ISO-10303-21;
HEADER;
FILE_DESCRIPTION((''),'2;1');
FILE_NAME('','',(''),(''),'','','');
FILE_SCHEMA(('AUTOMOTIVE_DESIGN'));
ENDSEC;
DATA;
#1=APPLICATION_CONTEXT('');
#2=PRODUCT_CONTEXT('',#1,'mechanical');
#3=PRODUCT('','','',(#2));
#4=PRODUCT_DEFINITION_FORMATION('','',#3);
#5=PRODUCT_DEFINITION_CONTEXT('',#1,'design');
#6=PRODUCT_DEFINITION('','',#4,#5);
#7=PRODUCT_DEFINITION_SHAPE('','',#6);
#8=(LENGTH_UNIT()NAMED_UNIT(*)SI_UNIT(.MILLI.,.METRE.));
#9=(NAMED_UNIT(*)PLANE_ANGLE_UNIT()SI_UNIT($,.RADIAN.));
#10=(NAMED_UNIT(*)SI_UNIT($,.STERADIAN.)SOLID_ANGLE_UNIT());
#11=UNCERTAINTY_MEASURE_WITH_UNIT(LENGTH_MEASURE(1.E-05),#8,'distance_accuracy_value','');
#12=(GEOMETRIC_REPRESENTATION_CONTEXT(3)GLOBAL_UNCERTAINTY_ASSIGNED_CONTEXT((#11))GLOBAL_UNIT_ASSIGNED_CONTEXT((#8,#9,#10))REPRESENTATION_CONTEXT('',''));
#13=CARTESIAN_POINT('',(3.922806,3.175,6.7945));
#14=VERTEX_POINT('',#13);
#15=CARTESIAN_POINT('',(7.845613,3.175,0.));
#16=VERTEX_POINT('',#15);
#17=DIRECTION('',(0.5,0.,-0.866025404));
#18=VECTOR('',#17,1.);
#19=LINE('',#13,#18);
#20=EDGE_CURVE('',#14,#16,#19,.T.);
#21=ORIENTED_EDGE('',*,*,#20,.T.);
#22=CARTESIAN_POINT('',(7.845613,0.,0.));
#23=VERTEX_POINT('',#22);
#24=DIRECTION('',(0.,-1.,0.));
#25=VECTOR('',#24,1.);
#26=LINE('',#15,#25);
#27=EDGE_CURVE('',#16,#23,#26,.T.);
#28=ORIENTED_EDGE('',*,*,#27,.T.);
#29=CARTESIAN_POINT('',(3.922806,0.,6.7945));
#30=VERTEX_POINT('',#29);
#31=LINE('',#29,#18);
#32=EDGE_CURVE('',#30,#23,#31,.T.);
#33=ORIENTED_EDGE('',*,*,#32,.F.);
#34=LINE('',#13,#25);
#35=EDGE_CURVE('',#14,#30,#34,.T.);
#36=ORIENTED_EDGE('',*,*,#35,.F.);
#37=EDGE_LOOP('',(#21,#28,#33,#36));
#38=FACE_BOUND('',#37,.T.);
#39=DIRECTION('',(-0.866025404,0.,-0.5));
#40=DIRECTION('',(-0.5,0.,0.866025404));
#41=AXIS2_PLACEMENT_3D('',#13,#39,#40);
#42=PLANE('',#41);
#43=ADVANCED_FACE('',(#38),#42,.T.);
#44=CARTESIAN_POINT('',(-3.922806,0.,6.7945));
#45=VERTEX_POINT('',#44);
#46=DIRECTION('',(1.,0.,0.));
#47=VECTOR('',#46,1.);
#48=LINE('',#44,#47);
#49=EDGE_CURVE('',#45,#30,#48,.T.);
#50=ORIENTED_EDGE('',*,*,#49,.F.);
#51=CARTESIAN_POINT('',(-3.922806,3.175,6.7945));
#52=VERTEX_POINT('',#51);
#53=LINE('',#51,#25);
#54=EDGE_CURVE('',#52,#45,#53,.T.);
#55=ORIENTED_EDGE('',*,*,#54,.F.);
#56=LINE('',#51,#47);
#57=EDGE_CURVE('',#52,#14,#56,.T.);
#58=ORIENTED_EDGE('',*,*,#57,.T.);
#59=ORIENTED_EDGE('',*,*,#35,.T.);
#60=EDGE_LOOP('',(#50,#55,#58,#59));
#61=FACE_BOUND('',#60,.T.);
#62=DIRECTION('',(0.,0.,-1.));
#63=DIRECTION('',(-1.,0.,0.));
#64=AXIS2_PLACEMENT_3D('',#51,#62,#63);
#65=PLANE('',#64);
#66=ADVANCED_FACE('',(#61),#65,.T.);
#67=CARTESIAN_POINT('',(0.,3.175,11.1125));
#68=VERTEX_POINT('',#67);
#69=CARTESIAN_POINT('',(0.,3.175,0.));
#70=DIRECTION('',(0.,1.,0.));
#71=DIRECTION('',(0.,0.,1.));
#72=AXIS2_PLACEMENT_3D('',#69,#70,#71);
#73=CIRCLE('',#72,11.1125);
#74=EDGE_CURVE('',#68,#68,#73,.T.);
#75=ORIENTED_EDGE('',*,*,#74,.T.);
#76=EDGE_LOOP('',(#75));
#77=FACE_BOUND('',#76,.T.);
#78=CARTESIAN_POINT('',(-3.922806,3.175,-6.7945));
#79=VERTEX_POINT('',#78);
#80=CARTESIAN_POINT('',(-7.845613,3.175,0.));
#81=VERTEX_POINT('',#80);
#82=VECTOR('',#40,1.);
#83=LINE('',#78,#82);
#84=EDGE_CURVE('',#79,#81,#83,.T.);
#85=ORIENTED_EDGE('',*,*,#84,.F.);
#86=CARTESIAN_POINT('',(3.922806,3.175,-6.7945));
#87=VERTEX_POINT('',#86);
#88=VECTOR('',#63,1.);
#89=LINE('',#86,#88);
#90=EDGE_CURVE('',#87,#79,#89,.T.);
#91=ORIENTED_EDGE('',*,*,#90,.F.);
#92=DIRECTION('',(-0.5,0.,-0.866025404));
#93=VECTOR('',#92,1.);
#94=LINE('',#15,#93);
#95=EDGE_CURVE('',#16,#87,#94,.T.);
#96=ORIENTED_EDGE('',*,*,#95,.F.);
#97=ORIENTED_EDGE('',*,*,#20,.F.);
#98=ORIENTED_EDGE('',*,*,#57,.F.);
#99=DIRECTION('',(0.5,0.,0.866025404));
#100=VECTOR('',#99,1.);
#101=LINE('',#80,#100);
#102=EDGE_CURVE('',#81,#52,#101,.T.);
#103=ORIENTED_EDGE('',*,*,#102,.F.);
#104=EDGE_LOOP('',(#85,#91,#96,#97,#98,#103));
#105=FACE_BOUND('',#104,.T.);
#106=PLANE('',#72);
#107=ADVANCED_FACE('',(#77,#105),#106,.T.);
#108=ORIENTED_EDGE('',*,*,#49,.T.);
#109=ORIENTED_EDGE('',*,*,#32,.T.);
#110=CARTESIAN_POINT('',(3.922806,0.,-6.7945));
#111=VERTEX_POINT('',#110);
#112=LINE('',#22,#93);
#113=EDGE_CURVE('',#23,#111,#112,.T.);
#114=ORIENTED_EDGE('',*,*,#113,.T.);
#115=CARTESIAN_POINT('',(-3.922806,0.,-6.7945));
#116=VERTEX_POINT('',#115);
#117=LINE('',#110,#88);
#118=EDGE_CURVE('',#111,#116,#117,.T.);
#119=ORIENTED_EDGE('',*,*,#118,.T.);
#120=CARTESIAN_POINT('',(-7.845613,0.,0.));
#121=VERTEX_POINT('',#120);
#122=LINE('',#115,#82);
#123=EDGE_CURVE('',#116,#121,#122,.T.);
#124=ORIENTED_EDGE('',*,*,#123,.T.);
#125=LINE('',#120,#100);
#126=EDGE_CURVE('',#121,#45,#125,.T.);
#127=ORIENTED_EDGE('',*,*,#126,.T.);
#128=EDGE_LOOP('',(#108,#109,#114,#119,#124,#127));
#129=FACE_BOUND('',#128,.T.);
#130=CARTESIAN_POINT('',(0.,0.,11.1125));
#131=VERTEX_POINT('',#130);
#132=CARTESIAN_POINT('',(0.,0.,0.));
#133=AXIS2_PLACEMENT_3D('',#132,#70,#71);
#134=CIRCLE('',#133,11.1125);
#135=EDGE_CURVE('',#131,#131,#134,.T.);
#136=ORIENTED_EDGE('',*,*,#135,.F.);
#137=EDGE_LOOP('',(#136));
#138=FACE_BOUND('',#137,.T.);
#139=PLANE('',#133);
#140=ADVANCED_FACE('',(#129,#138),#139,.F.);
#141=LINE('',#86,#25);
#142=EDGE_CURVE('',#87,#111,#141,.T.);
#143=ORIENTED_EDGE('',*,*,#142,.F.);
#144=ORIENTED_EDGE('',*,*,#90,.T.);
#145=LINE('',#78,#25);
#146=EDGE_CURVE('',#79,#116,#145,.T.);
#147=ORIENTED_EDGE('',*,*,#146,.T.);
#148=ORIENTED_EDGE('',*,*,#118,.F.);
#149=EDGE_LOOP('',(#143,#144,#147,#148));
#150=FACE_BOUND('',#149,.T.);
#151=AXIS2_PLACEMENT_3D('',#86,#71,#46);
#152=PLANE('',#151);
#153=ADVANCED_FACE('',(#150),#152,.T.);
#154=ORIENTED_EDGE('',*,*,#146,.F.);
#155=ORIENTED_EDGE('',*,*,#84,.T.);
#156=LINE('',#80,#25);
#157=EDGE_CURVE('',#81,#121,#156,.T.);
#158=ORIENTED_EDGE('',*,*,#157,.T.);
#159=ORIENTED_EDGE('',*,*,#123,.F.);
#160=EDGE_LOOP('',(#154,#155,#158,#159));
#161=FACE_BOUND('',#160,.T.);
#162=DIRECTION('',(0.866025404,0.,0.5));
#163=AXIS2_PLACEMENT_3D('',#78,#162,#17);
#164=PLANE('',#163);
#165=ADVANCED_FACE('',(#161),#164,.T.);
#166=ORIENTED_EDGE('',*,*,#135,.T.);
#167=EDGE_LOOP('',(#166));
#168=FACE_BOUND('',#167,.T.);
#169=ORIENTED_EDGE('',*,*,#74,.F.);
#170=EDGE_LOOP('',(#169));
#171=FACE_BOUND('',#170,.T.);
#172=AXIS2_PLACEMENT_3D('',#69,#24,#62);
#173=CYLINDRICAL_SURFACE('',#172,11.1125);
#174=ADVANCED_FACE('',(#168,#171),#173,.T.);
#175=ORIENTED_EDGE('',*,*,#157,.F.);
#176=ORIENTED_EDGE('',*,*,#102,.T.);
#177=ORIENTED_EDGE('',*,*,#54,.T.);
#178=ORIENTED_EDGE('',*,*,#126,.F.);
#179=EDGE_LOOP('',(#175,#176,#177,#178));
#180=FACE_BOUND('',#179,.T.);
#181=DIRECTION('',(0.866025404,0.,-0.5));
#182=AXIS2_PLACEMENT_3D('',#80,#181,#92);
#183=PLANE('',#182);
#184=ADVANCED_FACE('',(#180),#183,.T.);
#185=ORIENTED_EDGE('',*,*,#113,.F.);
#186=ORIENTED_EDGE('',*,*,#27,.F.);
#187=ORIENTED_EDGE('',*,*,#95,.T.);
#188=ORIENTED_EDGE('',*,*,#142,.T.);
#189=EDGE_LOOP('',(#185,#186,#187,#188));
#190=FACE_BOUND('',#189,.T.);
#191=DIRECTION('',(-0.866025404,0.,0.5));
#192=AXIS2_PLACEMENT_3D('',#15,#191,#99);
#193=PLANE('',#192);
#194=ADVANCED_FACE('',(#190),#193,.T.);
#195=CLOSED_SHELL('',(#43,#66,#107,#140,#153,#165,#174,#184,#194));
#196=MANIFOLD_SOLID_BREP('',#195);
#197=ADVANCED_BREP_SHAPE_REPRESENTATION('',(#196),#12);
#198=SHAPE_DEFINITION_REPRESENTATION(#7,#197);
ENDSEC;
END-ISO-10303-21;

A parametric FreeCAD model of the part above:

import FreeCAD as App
import Part
import Sketcher
from FreeCAD import Vector
Q = App.Units.Quantity


def add_polygon(sketch, points):
    """Adds a closed chain of lines whose ends are joined by coincident constraints."""
    first, n = sketch.GeometryCount, len(points)
    for a, b in zip(points, points[1:] + points[:1]):
        sketch.addGeometry(Part.LineSegment(App.Vector(*a, 0), App.Vector(*b, 0)), False)
    for i in range(n):
        sketch.addConstraint(Sketcher.Constraint("Coincident", first + i, 2, first + (i + 1) % n, 1))

doc = App.newDocument("Part")
body = doc.addObject("PartDesign::Body", "Body")

sketch1 = body.newObject("Sketcher::SketchObject", "Sketch")
sketch1.AttachmentSupport = (doc.getObject("XZ_Plane"), [""])
sketch1.MapMode = "FlatFace"
sketch1.addGeometry(Part.Circle(Vector(0, 0, 0), Vector(0, 0, 1), 11), False)
add_polygon(sketch1, [(4, -7), (8, 0), (4, 7), (-4, 7), (-8, 0), (-4, -7)])
sketch1.addConstraint([
    Sketcher.Constraint("Horizontal", 3),
    Sketcher.Constraint("Horizontal", 6),
    Sketcher.Constraint("Coincident", 0, 3, -1, 1),
    Sketcher.Constraint("Symmetric", 1, 2, 4, 2, -1, 1),
    Sketcher.Constraint("Symmetric", 2, 2, 5, 2, -1, 1),
    Sketcher.Constraint("PointOnObject", 1, 2, -1),
    Sketcher.Constraint("Parallel", 1, 4),
    Sketcher.Constraint("Vertical", 3, 2, 5, 2),
    Sketcher.Constraint("Diameter", 0, Q("0.875 in")),
    Sketcher.Constraint("Angle", 1, Q("60 deg")),
    Sketcher.Constraint("DistanceY", 5, 2, 3, 2, Q("0.535 in")),
    Sketcher.Constraint("DistanceX", 3, 2, 3, 1, Q("7.845613 mm")),
])
pad1 = body.newObject("PartDesign::Pad", "Pad")
pad1.Profile = sketch1
pad1.Length = Q("0.125 in")
pad1.Reversed = True

doc.recompute()
